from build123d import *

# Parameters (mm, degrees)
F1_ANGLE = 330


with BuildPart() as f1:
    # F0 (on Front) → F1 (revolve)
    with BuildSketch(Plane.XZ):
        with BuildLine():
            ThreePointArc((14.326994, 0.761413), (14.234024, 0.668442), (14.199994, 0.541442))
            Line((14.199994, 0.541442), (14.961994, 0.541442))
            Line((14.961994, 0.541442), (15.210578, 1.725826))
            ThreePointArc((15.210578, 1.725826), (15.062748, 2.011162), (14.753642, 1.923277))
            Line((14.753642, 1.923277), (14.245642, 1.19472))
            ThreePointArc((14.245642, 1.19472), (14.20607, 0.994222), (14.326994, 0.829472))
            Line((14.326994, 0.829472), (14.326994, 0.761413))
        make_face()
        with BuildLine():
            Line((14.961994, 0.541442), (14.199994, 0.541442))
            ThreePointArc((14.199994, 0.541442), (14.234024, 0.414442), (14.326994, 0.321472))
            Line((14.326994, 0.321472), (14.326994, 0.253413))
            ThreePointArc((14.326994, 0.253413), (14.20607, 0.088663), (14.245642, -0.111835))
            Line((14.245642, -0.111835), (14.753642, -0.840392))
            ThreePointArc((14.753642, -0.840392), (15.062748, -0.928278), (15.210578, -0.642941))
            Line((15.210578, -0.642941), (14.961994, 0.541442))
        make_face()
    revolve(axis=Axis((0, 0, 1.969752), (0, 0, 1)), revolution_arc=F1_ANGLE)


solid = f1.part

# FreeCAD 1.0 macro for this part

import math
import FreeCAD as App
import Part
import Sketcher

V = App.Vector
Q = App.Units.Quantity

doc = App.newDocument("Part")
body = doc.addObject("PartDesign::Body", "Body")

# Sketch on XZ plane
sketch1 = body.newObject("Sketcher::SketchObject", "Sketch")
sketch1.AttachmentSupport = (doc.getObject("XZ_Plane"), [""])
sketch1.MapMode = "FlatFace"
sketch1.addGeometry([
    Part.ArcOfCircle(Part.Circle(V(14.453998, 0.54144, 0), V(0, 0, 1), 0.254004), math.radians(120.00056), math.radians(179.999563)),  # 0
    Part.ArcOfCircle(Part.Circle(V(14.453995, 0.541443, 0), V(0, 0, 1), 0.254001), math.radians(-179.999758), math.radians(-120.000139)),  # 1
    Part.LineSegment(V(14.326994, 0.321472, 0), V(14.326994, 0.253413, 0)),  # 2
    Part.ArcOfCircle(Part.Circle(V(14.453997, 0.033442, 0), V(0, 0, 1), 0.254002), math.radians(120.000433), math.radians(214.886415)),  # 3
    Part.LineSegment(V(14.245642, -0.111835, 0), V(14.753642, -0.840392, 0)),  # 4
    Part.ArcOfCircle(Part.Circle(V(14.961994, -0.695116, 0), V(0, 0, 1), 0.254), math.radians(-145.113378), math.radians(11.853615)),  # 5
    Part.LineSegment(V(15.210578, -0.642941, 0), V(14.961994, 0.541442, 0)),  # 6
    Part.LineSegment(V(14.961994, 0.541442, 0), V(15.210578, 1.725826, 0)),  # 7
    Part.ArcOfCircle(Part.Circle(V(14.961994, 1.778, 0), V(0, 0, 1), 0.254), math.radians(-11.853362), math.radians(145.113124)),  # 8
    Part.LineSegment(V(14.753642, 1.923277, 0), V(14.245642, 1.19472, 0)),  # 9
    Part.ArcOfCircle(Part.Circle(V(14.453997, 1.049443, 0), V(0, 0, 1), 0.254002), math.radians(145.113585), math.radians(239.999567)),  # 10
    Part.LineSegment(V(14.326994, 0.829472, 0), V(14.326994, 0.761413, 0)),  # 11
], False)
sketch1.addConstraint([
    Sketcher.Constraint("Coincident", 0, 2, 1, 1),
    Sketcher.Constraint("Coincident", 1, 2, 2, 1),
    Sketcher.Constraint("Coincident", 2, 2, 3, 1),
    Sketcher.Constraint("Coincident", 3, 2, 4, 1),
    Sketcher.Constraint("Coincident", 4, 2, 5, 1),
    Sketcher.Constraint("Coincident", 5, 2, 6, 1),
    Sketcher.Constraint("Coincident", 6, 2, 7, 1),
    Sketcher.Constraint("Tangent", 7, 2, 8, 1),
    Sketcher.Constraint("Tangent", 8, 2, 9, 1),
    Sketcher.Constraint("Coincident", 9, 2, 10, 1),
    Sketcher.Constraint("Coincident", 10, 2, 11, 1),
    Sketcher.Constraint("Coincident", 11, 2, 0, 1),
    Sketcher.Constraint("Vertical", 2),
    Sketcher.Constraint("Vertical", 11),
    Sketcher.Constraint("Coincident", 1, 3, 0, 3),
    Sketcher.Constraint("Equal", 1, 3),
    Sketcher.Constraint("Equal", 1, 5),
    Sketcher.Constraint("Equal", 5, 8),
    Sketcher.Constraint("Equal", 8, 10),
    Sketcher.Constraint("Horizontal", 1, 3, 0, 2),
    Sketcher.Constraint("Horizontal", 0, 2, 6, 2),
    Sketcher.Constraint("Vertical", 1, 3, 3, 3),
    Sketcher.Constraint("Vertical", 5, 3, 8, 3),
    Sketcher.Constraint("Vertical", 3, 3, 10, 3),
    Sketcher.Constraint("Vertical", 8, 3, 6, 2),
    Sketcher.Constraint("Vertical", 5, 2, 7, 2),
    Sketcher.Constraint("Vertical", 4, 2, 8, 2),
    Sketcher.Constraint("Vertical", 3, 2, 9, 2),
    Sketcher.Constraint("Vertical", 2, 2, 10, 2),
    Sketcher.Constraint("Equal", 2, 11),
    Sketcher.Constraint("Equal", 6, 7),
    Sketcher.Constraint("Radius", 0, Q("0.0100002 in")),
    Sketcher.Constraint("DistanceY", -1, 1, 8, 3, Q("0.07 in")),
    Sketcher.Constraint("DistanceY", 3, 3, 0, 3, Q("0.0199999 in")),
    Sketcher.Constraint("DistanceX", 3, 3, 5, 3, Q("0.0199999 in")),
    Sketcher.Constraint("DistanceX", 3, 2, 4, 2, Q("0.02 in")),
    Sketcher.Constraint("DistanceX", 0, 2, 1, 2, Q("0.005 in")),
    Sketcher.Constraint("DistanceX", -1, 1, 0, 3, 14.453998),
    Sketcher.Constraint("Distance", 6, 1.210189),
])
revolution = body.newObject("PartDesign::Revolution", "Revolution")
revolution.Profile = sketch1
revolution.ReferenceAxis = (sketch1, ["V_Axis"])
revolution.Angle = 330

doc.recompute()
